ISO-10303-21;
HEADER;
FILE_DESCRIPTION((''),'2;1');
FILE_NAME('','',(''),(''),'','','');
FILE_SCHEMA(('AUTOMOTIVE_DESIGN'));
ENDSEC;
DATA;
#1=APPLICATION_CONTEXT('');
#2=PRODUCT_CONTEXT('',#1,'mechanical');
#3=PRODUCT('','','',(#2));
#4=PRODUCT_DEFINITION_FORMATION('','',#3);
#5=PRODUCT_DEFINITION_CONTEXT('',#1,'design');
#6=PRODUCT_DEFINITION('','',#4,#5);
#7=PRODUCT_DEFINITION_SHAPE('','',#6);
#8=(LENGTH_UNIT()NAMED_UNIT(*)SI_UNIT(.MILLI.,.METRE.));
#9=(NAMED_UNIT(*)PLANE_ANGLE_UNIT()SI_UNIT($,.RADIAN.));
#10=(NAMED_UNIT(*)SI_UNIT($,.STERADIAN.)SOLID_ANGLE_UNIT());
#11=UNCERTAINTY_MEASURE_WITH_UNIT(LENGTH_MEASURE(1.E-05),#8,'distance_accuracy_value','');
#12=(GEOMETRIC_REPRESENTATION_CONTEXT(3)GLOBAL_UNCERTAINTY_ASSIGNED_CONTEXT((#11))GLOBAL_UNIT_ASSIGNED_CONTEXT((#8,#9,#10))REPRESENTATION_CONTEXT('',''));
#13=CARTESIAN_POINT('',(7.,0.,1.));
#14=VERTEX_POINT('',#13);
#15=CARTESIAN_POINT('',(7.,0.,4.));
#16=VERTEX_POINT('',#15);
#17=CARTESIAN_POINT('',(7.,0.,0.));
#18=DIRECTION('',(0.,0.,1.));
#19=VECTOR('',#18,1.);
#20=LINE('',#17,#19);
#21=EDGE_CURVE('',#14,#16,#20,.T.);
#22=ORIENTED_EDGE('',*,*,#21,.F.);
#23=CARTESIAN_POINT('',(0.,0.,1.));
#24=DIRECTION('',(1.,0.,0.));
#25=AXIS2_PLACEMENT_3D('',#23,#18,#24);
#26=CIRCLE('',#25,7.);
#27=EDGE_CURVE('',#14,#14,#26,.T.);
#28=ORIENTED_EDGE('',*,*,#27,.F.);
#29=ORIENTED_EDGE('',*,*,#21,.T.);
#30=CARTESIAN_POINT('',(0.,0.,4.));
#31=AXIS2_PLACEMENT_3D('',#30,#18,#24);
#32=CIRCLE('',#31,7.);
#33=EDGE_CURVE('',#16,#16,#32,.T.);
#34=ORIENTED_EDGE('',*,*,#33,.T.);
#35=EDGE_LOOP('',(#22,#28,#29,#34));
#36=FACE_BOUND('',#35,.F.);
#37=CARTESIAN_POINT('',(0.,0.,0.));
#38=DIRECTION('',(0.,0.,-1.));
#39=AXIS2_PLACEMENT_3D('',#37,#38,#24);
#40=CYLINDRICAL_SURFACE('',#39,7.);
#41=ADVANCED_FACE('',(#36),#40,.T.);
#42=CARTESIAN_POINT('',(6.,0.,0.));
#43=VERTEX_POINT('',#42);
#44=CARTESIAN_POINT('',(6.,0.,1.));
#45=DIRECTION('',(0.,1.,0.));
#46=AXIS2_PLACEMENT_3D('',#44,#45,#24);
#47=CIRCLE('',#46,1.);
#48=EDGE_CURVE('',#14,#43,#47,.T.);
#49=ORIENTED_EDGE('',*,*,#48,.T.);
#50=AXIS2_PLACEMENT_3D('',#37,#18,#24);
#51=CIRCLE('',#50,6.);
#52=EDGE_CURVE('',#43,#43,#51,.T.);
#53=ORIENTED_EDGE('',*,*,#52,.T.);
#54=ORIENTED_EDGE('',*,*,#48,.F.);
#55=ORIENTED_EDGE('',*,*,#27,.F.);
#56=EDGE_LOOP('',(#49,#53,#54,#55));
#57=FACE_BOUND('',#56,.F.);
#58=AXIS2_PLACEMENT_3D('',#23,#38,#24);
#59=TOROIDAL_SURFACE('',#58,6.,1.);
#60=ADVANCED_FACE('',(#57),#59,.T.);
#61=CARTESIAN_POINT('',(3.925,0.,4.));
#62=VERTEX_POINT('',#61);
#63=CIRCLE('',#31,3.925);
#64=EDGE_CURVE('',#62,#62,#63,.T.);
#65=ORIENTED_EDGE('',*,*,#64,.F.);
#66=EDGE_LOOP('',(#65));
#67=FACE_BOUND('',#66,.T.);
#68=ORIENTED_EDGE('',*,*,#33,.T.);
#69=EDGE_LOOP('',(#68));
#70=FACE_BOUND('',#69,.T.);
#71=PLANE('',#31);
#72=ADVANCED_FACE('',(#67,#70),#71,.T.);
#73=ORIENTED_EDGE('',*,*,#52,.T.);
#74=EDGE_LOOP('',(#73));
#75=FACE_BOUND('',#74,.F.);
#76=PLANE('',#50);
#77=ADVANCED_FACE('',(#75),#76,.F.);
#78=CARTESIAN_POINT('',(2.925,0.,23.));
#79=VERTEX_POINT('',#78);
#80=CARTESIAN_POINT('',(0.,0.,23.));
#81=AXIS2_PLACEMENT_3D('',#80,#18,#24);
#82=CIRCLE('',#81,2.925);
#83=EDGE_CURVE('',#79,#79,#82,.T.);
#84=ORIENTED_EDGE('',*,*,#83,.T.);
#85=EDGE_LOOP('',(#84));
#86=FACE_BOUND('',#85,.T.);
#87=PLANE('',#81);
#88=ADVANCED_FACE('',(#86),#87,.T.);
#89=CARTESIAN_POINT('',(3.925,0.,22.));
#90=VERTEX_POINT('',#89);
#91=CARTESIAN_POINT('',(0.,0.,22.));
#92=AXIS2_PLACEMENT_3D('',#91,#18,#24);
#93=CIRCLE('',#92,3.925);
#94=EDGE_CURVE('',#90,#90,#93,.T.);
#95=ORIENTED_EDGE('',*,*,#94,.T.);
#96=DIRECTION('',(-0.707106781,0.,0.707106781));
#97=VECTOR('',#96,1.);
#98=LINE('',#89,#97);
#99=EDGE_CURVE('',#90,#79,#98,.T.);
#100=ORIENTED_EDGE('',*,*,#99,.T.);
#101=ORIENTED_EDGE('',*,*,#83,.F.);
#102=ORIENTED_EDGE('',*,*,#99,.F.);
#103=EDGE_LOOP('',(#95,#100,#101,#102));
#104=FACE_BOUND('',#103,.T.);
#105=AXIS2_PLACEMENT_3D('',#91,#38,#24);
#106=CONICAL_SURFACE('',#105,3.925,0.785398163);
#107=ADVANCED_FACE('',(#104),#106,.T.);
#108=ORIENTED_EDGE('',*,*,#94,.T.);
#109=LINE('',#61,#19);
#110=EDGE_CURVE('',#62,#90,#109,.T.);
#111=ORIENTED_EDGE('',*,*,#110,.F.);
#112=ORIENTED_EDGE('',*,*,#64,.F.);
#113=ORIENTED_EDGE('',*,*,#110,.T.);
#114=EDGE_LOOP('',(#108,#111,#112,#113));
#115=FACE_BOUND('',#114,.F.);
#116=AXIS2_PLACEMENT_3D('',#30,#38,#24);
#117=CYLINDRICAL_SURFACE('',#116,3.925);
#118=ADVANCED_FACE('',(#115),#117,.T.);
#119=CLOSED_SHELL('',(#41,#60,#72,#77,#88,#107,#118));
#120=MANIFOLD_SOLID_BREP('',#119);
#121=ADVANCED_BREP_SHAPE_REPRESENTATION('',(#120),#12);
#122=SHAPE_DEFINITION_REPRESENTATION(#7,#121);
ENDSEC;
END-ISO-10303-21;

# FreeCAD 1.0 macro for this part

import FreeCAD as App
import Part
import Sketcher


def edges_at(feature, points):
    """Names of the edges that pass closest to the given points."""
    edges = feature.Shape.Edges
    near = lambda p: min(range(len(edges)), key=lambda i: edges[i].distToShape(Part.Vertex(*p))[0])
    return sorted({f"Edge{near(p) + 1}" for p in points})

doc = App.newDocument("Part")
params = doc.addObject("Spreadsheet::Sheet", "Params")
for row, (alias, value) in enumerate([
    ("sketch1_diameter", "14 mm"),
    ("pad1_length", "4 mm"),
    ("sketch2_diameter", "7.85 mm"),
    ("pad2_length", "19 mm"),
    ("chamfer_size", "1 mm"),
    ("fillet_radius", "1 mm"),
], start=1):
    params.set(f"A{row}", alias)
    params.set(f"B{row}", "=" + value)
    params.setAlias(f"B{row}", alias)

body = doc.addObject("PartDesign::Body", "Body")

# Sketch on XY plane
sketch1 = body.newObject("Sketcher::SketchObject", "Sketch")
sketch1.AttachmentSupport = (doc.getObject("XY_Plane"), [""])
sketch1.MapMode = "FlatFace"
sketch1.addGeometry(Part.Circle(App.Vector(0, 0, 0), App.Vector(0, 0, 1), 7), False)
sketch1.addConstraint([
    Sketcher.Constraint("Coincident", 0, 3, -1, 1),
    Sketcher.Constraint("Diameter", 0, 14.0),
])
sketch1.setExpression("Constraints[1]", "Params.sketch1_diameter")
pad1 = body.newObject("PartDesign::Pad", "Pad")
pad1.Profile = sketch1
pad1.setExpression("Length", "Params.pad1_length")

# Sketch on XY plane
sketch2 = body.newObject("Sketcher::SketchObject", "Sketch001")
sketch2.AttachmentSupport = (doc.getObject("XY_Plane"), [""])
sketch2.MapMode = "FlatFace"
sketch2.AttachmentOffset = App.Placement(App.Vector(0, 0, 4), App.Rotation())
sketch2.addGeometry(Part.Circle(App.Vector(0, 0, 0), App.Vector(0, 0, 1), 3.9), False)
sketch2.addConstraint([
    Sketcher.Constraint("Coincident", 0, 3, -1, 1),
    Sketcher.Constraint("Diameter", 0, 7.85),
])
sketch2.setExpression("Constraints[1]", "Params.sketch2_diameter")
pad2 = body.newObject("PartDesign::Pad", "Pad001")
pad2.Profile = sketch2
pad2.setExpression("Length", "Params.pad2_length")
doc.recompute()

chamfer = body.newObject("PartDesign::Chamfer", "Chamfer")
chamfer.Base = (pad2, edges_at(pad2, [(-3.925, 0, 23)]))
chamfer.setExpression("Size", "Params.chamfer_size")
doc.recompute()

fillet = body.newObject("PartDesign::Fillet", "Fillet")
fillet.Base = (chamfer, edges_at(chamfer, [(-7, 0, 0)]))
fillet.setExpression("Radius", "Params.fillet_radius")

doc.recompute()
